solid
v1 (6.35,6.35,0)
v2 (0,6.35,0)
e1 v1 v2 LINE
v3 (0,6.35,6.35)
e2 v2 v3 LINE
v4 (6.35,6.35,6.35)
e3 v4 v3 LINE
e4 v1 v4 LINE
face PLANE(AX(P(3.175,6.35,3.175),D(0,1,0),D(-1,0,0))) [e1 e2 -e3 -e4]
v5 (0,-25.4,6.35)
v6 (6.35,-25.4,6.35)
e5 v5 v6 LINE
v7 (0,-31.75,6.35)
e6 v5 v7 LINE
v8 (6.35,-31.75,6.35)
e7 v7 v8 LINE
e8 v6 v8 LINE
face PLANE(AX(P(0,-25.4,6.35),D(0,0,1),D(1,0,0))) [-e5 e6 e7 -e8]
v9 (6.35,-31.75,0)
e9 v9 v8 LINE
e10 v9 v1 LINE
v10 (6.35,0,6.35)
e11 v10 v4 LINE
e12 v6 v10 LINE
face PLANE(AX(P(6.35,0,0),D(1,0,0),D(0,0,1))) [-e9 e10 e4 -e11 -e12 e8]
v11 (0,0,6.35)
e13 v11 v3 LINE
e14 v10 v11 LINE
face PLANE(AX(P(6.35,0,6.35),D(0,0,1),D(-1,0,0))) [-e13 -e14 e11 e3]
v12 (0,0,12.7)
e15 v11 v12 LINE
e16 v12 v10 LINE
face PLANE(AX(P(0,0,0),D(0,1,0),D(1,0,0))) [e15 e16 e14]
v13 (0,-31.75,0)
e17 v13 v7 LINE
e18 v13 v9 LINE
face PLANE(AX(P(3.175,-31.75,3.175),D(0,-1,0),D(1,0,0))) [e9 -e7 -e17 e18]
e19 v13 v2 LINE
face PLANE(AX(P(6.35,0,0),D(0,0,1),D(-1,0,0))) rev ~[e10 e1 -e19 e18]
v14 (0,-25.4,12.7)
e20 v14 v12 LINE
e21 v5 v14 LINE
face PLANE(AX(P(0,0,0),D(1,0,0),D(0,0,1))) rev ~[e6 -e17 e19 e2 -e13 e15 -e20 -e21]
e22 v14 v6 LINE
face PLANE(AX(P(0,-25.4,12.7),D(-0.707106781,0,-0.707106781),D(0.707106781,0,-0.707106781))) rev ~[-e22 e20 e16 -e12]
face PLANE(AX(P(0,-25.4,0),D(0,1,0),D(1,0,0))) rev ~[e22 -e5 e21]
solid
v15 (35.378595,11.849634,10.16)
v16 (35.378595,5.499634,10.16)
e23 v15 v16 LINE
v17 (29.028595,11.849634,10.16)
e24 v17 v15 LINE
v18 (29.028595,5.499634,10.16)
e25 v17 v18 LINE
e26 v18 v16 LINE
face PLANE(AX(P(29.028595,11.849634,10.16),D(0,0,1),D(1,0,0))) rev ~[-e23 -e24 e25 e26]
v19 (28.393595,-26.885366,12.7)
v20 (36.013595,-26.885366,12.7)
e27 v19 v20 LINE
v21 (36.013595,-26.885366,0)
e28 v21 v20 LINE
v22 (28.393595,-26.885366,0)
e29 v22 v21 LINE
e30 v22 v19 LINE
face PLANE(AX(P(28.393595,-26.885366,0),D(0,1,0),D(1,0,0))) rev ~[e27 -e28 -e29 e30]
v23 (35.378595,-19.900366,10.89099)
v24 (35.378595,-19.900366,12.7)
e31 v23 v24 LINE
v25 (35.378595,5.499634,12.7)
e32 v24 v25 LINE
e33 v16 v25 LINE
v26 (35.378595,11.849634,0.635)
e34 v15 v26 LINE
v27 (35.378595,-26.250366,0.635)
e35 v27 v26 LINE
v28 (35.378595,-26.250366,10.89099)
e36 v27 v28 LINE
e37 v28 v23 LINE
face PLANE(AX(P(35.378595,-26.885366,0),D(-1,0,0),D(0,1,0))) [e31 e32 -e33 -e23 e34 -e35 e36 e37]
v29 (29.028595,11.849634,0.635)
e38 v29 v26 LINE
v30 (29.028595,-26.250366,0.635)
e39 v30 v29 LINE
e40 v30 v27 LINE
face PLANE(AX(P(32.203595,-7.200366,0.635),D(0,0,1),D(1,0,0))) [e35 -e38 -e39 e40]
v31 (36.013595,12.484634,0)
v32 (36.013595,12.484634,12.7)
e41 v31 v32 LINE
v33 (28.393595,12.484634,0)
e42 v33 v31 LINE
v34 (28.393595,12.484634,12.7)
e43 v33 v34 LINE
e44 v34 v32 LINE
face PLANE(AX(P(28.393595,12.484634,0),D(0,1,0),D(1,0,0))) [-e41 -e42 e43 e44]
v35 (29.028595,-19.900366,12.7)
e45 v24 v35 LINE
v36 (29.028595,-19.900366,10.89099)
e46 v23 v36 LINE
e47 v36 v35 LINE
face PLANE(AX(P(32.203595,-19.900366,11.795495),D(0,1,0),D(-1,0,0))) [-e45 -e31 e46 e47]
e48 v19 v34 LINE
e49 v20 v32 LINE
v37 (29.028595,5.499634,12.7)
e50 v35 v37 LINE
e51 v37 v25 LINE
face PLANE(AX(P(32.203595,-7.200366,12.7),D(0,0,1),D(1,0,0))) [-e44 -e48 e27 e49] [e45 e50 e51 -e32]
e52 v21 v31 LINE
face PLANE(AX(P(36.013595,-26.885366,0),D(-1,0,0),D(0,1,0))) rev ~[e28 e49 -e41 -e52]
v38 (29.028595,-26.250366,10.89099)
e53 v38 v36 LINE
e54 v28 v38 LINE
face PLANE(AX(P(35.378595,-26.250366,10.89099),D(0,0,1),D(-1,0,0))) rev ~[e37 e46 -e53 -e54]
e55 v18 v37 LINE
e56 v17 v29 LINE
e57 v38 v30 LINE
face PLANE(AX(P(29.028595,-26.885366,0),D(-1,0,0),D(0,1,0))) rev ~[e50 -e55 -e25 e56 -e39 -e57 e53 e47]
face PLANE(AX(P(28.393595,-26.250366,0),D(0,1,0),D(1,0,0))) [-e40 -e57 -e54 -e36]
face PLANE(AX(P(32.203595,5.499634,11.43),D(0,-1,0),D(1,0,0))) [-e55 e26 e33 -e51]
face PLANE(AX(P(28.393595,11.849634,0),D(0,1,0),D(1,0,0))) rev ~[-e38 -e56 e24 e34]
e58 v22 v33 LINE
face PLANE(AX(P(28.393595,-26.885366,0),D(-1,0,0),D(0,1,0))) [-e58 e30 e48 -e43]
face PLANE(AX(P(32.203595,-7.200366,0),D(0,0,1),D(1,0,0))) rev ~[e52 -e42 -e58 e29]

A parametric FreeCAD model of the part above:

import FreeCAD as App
import Part
import Sketcher
Q = App.Units.Quantity


def faces_at(feature, points):
    """Names of the faces that lie closest to the given points."""
    faces = feature.Shape.Faces
    near = lambda p: min(range(len(faces)), key=lambda i: faces[i].distToShape(Part.Vertex(*p))[0])
    return sorted({f"Face{near(p) + 1}" for p in points})

doc = App.newDocument("Part")
params = doc.addObject("Spreadsheet::Sheet", "Params")
for row, (alias, value) in enumerate([
    ("sketch1_height", "1 in"),
    ("sketch1_width", "0.25 in"),
    ("pad1_length", "0.5 in"),
    ("sketch2_width", "0.25 in"),
    ("sketch3_width", "0.25 in"),
    ("pad2_length", "0.25 in"),
    ("sketch4_width", "0.25 in"),
    ("pad3_length", "0.25 in"),
    ("sketch5_width", "0.3 in"),
    ("sketch5_height", "1.55 in"),
    ("pad4_length", "0.5 in"),
    ("thickness_wall", "0.025 in"),
    ("sketch6_height", "0.1 in"),
    ("sketch6_width", "0.25 in"),
    ("pad5_length", "0.25 in"),
    ("sketch7_width", "0.25 in"),
    ("pad6_length", "0.25 in"),
], start=1):
    params.set(f"A{row}", alias)
    params.set(f"B{row}", "=" + value)
    params.setAlias(f"B{row}", alias)

body = doc.addObject("PartDesign::Body", "Body")

sketch1 = body.newObject("Sketcher::SketchObject", "Sketch")
sketch1.AttachmentSupport = (doc.getObject("XY_Plane"), [""])
sketch1.MapMode = "FlatFace"
sketch1.addGeometry([
    Part.LineSegment(App.Vector(0, 0, 0), App.Vector(0, -25, 0)),
    Part.LineSegment(App.Vector(0, -25, 0), App.Vector(6, -25, 0)),
    Part.LineSegment(App.Vector(6, -25, 0), App.Vector(6, 0, 0)),
    Part.LineSegment(App.Vector(6, 0, 0), App.Vector(0, 0, 0)),
], False)
sketch1.addConstraint([
    Sketcher.Constraint("Coincident", 0, 2, 1, 1),
    Sketcher.Constraint("Coincident", 1, 2, 2, 1),
    Sketcher.Constraint("Coincident", 2, 2, 3, 1),
    Sketcher.Constraint("Coincident", 3, 2, 0, 1),
    Sketcher.Constraint("Vertical", 0),
    Sketcher.Constraint("Horizontal", 1),
    Sketcher.Constraint("Vertical", 2),
    Sketcher.Constraint("Horizontal", 3),
    Sketcher.Constraint("Coincident", 3, 2, -1, 1),
    Sketcher.Constraint("DistanceY", 0, 2, 0, 1, Q("1 in")),
    Sketcher.Constraint("DistanceX", 1, 1, 1, 2, Q("0.25 in")),
])
sketch1.setExpression("Constraints[9]", "Params.sketch1_height")
sketch1.setExpression("Constraints[10]", "Params.sketch1_width")
pad1 = body.newObject("PartDesign::Pad", "Pad")
pad1.Profile = sketch1
pad1.setExpression("Length", "Params.pad1_length")

sketch2 = body.newObject("Sketcher::SketchObject", "Sketch001")
sketch2.AttachmentSupport = (doc.getObject("XZ_Plane"), [""])
sketch2.MapMode = "FlatFace"
sketch2.AttachmentOffset = App.Placement(App.Vector(0, 0, 1 * 25.4), App.Rotation())
sketch2.addGeometry([
    Part.LineSegment(App.Vector(0, 13, 0), App.Vector(6, 6, 0)),
    Part.LineSegment(App.Vector(6, 6, 0), App.Vector(6, 13, 0)),
    Part.LineSegment(App.Vector(6, 13, 0), App.Vector(0, 13, 0)),
], False)
sketch2.addConstraint([
    Sketcher.Constraint("Coincident", 0, 2, 1, 1),
    Sketcher.Constraint("Coincident", 1, 2, 2, 1),
    Sketcher.Constraint("Coincident", 2, 2, 0, 1),
    Sketcher.Constraint("Vertical", 1),
    Sketcher.Constraint("Horizontal", 2),
    Sketcher.Constraint("PointOnObject", 2, 2, -2),
    Sketcher.Constraint("Equal", 2, 1),
    Sketcher.Constraint("DistanceX", 2, 2, 2, 1, Q("0.25 in")),
    Sketcher.Constraint("DistanceY", -1, 1, 1, 2, Q("0.5 in")),
])
sketch2.setExpression("Constraints[7]", "Params.sketch2_width")
pocket1 = body.newObject("PartDesign::Pocket", "Pocket")
pocket1.Profile = sketch2
pocket1.Type = "ThroughAll"

sketch3 = body.newObject("Sketcher::SketchObject", "Sketch002")
sketch3.AttachmentSupport = (doc.getObject("XZ_Plane"), [""])
sketch3.MapMode = "FlatFace"
sketch3.AttachmentOffset = App.Placement(App.Vector(0, 0, 1 * 25.4), App.Rotation())
sketch3.addGeometry([
    Part.LineSegment(App.Vector(0, 6, 0), App.Vector(0, 0, 0)),
    Part.LineSegment(App.Vector(0, 0, 0), App.Vector(6, 0, 0)),
    Part.LineSegment(App.Vector(6, 0, 0), App.Vector(6, 6, 0)),
    Part.LineSegment(App.Vector(6, 6, 0), App.Vector(0, 6, 0)),
], False)
sketch3.addConstraint([
    Sketcher.Constraint("Coincident", 0, 2, 1, 1),
    Sketcher.Constraint("Coincident", 1, 2, 2, 1),
    Sketcher.Constraint("Coincident", 2, 2, 3, 1),
    Sketcher.Constraint("Coincident", 3, 2, 0, 1),
    Sketcher.Constraint("Vertical", 0),
    Sketcher.Constraint("Horizontal", 1),
    Sketcher.Constraint("Vertical", 2),
    Sketcher.Constraint("Horizontal", 3),
    Sketcher.Constraint("Coincident", 0, 2, -1, 1),
    Sketcher.Constraint("Equal", 3, 0),
    Sketcher.Constraint("DistanceX", 1, 1, 1, 2, Q("0.25 in")),
])
sketch3.setExpression("Constraints[10]", "Params.sketch3_width")
pad2 = body.newObject("PartDesign::Pad", "Pad001")
pad2.Profile = sketch3
pad2.setExpression("Length", "Params.pad2_length")

sketch4 = body.newObject("Sketcher::SketchObject", "Sketch003")
sketch4.AttachmentSupport = (doc.getObject("XZ_Plane"), [""])
sketch4.MapMode = "FlatFace"
sketch4.addGeometry([
    Part.LineSegment(App.Vector(6, 6, 0), App.Vector(6, 0, 0)),
    Part.LineSegment(App.Vector(6, 0, 0), App.Vector(0, 0, 0)),
    Part.LineSegment(App.Vector(0, 0, 0), App.Vector(0, 6, 0)),
    Part.LineSegment(App.Vector(0, 6, 0), App.Vector(6, 6, 0)),
], False)
sketch4.addConstraint([
    Sketcher.Constraint("Coincident", 0, 2, 1, 1),
    Sketcher.Constraint("Coincident", 1, 2, 2, 1),
    Sketcher.Constraint("Coincident", 2, 2, 3, 1),
    Sketcher.Constraint("Coincident", 3, 2, 0, 1),
    Sketcher.Constraint("Vertical", 0),
    Sketcher.Constraint("Horizontal", 1),
    Sketcher.Constraint("Vertical", 2),
    Sketcher.Constraint("Horizontal", 3),
    Sketcher.Constraint("Coincident", 1, 2, -1, 1),
    Sketcher.Constraint("Equal", 3, 0),
    Sketcher.Constraint("DistanceX", 1, 2, 1, 1, Q("0.25 in")),
])
sketch4.setExpression("Constraints[10]", "Params.sketch4_width")
pad3 = body.newObject("PartDesign::Pad", "Pad002")
pad3.Profile = sketch4
pad3.setExpression("Length", "Params.pad3_length")
pad3.Reversed = True
body2 = doc.addObject("PartDesign::Body", "Body001")

sketch5 = body2.newObject("Sketcher::SketchObject", "Sketch004")
sketch5.AttachmentSupport = (doc.getObject("XY_Plane001"), [""])
sketch5.MapMode = "FlatFace"
sketch5.addGeometry([
    Part.LineSegment(App.Vector(28, 12, 0), App.Vector(28, -27, 0)),
    Part.LineSegment(App.Vector(28, -27, 0), App.Vector(36, -27, 0)),
    Part.LineSegment(App.Vector(36, -27, 0), App.Vector(36, 12, 0)),
    Part.LineSegment(App.Vector(36, 12, 0), App.Vector(28, 12, 0)),
], False)
sketch5.addConstraint([
    Sketcher.Constraint("Coincident", 0, 2, 1, 1),
    Sketcher.Constraint("Coincident", 1, 2, 2, 1),
    Sketcher.Constraint("Coincident", 2, 2, 3, 1),
    Sketcher.Constraint("Coincident", 3, 2, 0, 1),
    Sketcher.Constraint("Vertical", 0),
    Sketcher.Constraint("Horizontal", 1),
    Sketcher.Constraint("Vertical", 2),
    Sketcher.Constraint("Horizontal", 3),
    Sketcher.Constraint("DistanceX", 1, 1, 1, 2, Q("0.3 in")),
    Sketcher.Constraint("DistanceY", 0, 2, 0, 1, Q("1.55 in")),
    Sketcher.Constraint("DistanceX", -1, 1, 0, 2, Q("28.393595 mm")),
    Sketcher.Constraint("DistanceY", 0, 2, -1, 1, Q("26.885366 mm")),
])
sketch5.setExpression("Constraints[8]", "Params.sketch5_width")
sketch5.setExpression("Constraints[9]", "Params.sketch5_height")
pad4 = body2.newObject("PartDesign::Pad", "Pad003")
pad4.Profile = sketch5
pad4.setExpression("Length", "Params.pad4_length")
doc.recompute()

thickness = body2.newObject("PartDesign::Thickness", "Thickness")
thickness.Base = (pad4, faces_at(pad4, [(32.204, -7.2, 12.7)]))
thickness.setExpression("Value", "Params.thickness_wall")
thickness.Reversed = True
thickness.Join = "Arc"

sketch6 = body2.newObject("Sketcher::SketchObject", "Sketch005")
sketch6.AttachmentSupport = (doc.getObject("XZ_Plane001"), [""])
sketch6.MapMode = "FlatFace"
sketch6.AttachmentOffset = App.Placement(App.Vector(0, 0, -11.849634), App.Rotation())
sketch6.addGeometry([
    Part.LineSegment(App.Vector(29, 12.7, 0), App.Vector(29, 10.2, 0)),
    Part.LineSegment(App.Vector(29, 10.2, 0), App.Vector(35.4, 10.2, 0)),
    Part.LineSegment(App.Vector(35.4, 10.2, 0), App.Vector(35.4, 12.7, 0)),
    Part.LineSegment(App.Vector(35.4, 12.7, 0), App.Vector(29, 12.7, 0)),
], False)
sketch6.addConstraint([
    Sketcher.Constraint("Coincident", 0, 2, 1, 1),
    Sketcher.Constraint("Coincident", 1, 2, 2, 1),
    Sketcher.Constraint("Coincident", 2, 2, 3, 1),
    Sketcher.Constraint("Coincident", 3, 2, 0, 1),
    Sketcher.Constraint("Vertical", 0),
    Sketcher.Constraint("Horizontal", 1),
    Sketcher.Constraint("Vertical", 2),
    Sketcher.Constraint("Horizontal", 3),
    Sketcher.Constraint("DistanceY", 0, 2, 0, 1, Q("0.1 in")),
    Sketcher.Constraint("DistanceX", 1, 1, 1, 2, Q("0.25 in")),
    Sketcher.Constraint("DistanceY", -1, 1, 0, 2, Q("0.4 in")),
    Sketcher.Constraint("DistanceX", -1, 1, 0, 2, Q("29.028595 mm")),
])
sketch6.setExpression("Constraints[8]", "Params.sketch6_height")
sketch6.setExpression("Constraints[9]", "Params.sketch6_width")
pad5 = body2.newObject("PartDesign::Pad", "Pad004")
pad5.Profile = sketch6
pad5.setExpression("Length", "Params.pad5_length")

sketch7 = body2.newObject("Sketcher::SketchObject", "Sketch006")
sketch7.AttachmentSupport = (doc.getObject("XZ_Plane001"), [""])
sketch7.MapMode = "FlatFace"
sketch7.AttachmentOffset = App.Placement(App.Vector(0, 0, 26.250366), App.Rotation())
sketch7.addGeometry([
    Part.LineSegment(App.Vector(35.4, 12.7, 0), App.Vector(35.4, 10.9, 0)),
    Part.LineSegment(App.Vector(35.4, 10.9, 0), App.Vector(29, 10.9, 0)),
    Part.LineSegment(App.Vector(29, 10.9, 0), App.Vector(29, 12.7, 0)),
    Part.LineSegment(App.Vector(29, 12.7, 0), App.Vector(35.4, 12.7, 0)),
], False)
sketch7.addConstraint([
    Sketcher.Constraint("Coincident", 0, 2, 1, 1),
    Sketcher.Constraint("Coincident", 1, 2, 2, 1),
    Sketcher.Constraint("Coincident", 2, 2, 3, 1),
    Sketcher.Constraint("Coincident", 3, 2, 0, 1),
    Sketcher.Constraint("Vertical", 0),
    Sketcher.Constraint("Horizontal", 1),
    Sketcher.Constraint("Vertical", 2),
    Sketcher.Constraint("Horizontal", 3),
    Sketcher.Constraint("DistanceX", 1, 2, 1, 1, Q("0.25 in")),
    Sketcher.Constraint("DistanceY", -1, 1, 2, 2, Q("0.5 in")),
    Sketcher.Constraint("DistanceY", 0, 2, 0, 1, Q("1.80901 mm")),
    Sketcher.Constraint("DistanceX", -1, 1, 0, 2, Q("35.378595 mm")),
])
sketch7.setExpression("Constraints[8]", "Params.sketch7_width")
pad6 = body2.newObject("PartDesign::Pad", "Pad005")
pad6.Profile = sketch7
pad6.setExpression("Length", "Params.pad6_length")
pad6.Reversed = True

doc.recompute()
